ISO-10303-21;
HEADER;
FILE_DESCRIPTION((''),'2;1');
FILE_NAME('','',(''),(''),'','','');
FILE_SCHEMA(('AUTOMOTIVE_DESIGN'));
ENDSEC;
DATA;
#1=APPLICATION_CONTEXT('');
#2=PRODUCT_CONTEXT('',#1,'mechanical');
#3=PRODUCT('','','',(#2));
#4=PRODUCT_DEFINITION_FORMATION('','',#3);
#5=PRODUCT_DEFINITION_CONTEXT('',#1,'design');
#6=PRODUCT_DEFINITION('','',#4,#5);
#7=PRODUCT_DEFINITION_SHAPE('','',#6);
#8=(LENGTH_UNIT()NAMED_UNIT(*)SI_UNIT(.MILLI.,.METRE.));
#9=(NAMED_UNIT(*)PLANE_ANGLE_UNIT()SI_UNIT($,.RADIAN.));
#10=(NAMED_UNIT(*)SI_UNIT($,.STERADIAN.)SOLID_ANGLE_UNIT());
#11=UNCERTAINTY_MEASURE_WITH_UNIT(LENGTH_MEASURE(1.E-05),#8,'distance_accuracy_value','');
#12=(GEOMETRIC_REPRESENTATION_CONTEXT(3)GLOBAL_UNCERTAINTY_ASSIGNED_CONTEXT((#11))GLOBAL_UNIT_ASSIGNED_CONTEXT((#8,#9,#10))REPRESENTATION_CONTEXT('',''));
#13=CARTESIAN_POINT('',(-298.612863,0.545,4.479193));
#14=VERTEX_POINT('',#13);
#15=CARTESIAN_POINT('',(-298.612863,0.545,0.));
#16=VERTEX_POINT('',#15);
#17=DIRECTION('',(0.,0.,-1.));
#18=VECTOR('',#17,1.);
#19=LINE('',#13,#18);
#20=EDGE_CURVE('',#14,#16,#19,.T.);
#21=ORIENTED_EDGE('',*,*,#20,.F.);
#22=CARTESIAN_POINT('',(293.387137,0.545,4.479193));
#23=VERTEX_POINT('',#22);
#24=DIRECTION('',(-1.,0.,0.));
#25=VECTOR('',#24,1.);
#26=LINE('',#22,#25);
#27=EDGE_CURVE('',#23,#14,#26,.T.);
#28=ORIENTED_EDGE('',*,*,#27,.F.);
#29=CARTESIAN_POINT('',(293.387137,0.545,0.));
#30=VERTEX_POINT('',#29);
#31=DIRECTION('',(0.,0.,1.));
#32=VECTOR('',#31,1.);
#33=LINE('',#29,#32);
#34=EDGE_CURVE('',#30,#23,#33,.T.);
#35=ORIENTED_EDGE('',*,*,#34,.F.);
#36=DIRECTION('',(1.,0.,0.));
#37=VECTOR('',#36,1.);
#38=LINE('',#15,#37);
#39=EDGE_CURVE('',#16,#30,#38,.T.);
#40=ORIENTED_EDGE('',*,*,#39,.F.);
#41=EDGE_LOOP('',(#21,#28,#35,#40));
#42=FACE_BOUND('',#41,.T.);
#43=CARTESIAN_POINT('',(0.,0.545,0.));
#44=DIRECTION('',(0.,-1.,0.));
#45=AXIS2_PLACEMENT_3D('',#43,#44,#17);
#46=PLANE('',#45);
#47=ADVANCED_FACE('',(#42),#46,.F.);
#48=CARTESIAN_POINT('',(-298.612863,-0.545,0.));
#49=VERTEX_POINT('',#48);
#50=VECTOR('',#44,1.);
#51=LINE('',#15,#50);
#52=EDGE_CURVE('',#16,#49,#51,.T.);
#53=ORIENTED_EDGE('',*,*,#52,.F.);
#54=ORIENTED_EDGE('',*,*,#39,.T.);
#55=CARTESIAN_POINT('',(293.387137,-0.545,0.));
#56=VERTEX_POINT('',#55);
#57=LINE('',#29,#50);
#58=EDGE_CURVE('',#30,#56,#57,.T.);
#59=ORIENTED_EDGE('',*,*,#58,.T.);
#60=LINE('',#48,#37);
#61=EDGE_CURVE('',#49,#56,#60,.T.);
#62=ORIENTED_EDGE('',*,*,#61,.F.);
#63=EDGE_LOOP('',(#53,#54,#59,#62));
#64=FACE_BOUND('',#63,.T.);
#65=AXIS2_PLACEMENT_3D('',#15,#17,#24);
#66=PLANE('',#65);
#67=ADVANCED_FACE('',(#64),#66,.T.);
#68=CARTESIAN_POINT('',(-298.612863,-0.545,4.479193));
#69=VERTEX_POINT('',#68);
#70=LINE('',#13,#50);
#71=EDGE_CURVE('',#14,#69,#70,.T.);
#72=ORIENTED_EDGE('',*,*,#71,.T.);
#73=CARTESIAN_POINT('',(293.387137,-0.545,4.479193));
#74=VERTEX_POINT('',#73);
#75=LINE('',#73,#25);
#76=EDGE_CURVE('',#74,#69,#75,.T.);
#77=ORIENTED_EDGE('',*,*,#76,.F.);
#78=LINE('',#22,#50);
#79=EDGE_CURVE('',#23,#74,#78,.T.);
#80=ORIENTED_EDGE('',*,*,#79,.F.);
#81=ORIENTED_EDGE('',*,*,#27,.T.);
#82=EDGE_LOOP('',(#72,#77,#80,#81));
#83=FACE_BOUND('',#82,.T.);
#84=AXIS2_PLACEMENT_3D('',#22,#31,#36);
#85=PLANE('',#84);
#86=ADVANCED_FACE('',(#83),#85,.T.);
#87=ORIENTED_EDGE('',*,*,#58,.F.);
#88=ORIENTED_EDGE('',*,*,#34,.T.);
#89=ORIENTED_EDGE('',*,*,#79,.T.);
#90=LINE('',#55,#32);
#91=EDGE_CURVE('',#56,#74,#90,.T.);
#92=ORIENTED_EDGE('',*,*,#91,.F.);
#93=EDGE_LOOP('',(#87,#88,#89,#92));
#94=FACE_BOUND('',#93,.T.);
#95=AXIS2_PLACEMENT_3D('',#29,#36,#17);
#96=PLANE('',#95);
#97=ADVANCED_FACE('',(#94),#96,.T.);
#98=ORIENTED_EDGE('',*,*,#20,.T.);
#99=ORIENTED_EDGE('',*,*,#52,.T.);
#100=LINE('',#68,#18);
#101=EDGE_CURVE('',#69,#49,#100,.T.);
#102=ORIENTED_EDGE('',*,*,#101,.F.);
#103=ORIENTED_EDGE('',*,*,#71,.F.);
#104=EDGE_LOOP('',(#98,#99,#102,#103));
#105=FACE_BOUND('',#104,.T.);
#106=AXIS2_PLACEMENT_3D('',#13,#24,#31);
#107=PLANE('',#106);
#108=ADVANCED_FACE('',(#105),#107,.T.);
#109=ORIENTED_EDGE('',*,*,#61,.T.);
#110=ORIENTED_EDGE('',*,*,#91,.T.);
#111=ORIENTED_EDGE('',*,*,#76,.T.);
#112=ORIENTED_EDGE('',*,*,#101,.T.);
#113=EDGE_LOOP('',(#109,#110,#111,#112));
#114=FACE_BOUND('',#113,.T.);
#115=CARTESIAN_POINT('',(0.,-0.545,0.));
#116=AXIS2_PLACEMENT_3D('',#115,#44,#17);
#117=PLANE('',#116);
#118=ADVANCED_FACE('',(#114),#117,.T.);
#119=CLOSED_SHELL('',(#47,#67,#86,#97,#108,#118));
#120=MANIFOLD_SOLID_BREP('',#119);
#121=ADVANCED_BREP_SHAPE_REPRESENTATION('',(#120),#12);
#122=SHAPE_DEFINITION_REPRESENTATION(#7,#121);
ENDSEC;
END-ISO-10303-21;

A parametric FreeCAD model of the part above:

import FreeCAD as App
import Part
import Sketcher
from FreeCAD import Vector

doc = App.newDocument("Part")
params = doc.addObject("Spreadsheet::Sheet", "Params")
for row, (alias, value) in enumerate([
    ("sketch1_width", "592 mm"),
    ("pad1_length", "1.09 mm"),
], start=1):
    params.set(f"A{row}", alias)
    params.set(f"B{row}", "=" + value)
    params.setAlias(f"B{row}", alias)

body = doc.addObject("PartDesign::Body", "Body")

sketch1 = doc.addObject("Sketcher::SketchObject", "Sketch")
body.addObject(sketch1)
sketch1.AttachmentSupport = (doc.XZ_Plane, [""])
sketch1.MapMode = "FlatFace"
sketch1.AttachmentOffset = App.Placement(Vector(0, 0, 0.545), App.Rotation())
sketch1.addGeometry([
    Part.LineSegment(Vector(-298.6, 4.5, 0), Vector(-298.6, 0, 0)),
    Part.LineSegment(Vector(-298.6, 0, 0), Vector(293.4, 0, 0)),
    Part.LineSegment(Vector(293.4, 0, 0), Vector(293.4, 4.5, 0)),
    Part.LineSegment(Vector(293.4, 4.5, 0), Vector(-298.6, 4.5, 0)),
], False)
sketch1.addConstraint([
    Sketcher.Constraint("Coincident", 0, 2, 1, 1),
    Sketcher.Constraint("Coincident", 1, 2, 2, 1),
    Sketcher.Constraint("Coincident", 2, 2, 3, 1),
    Sketcher.Constraint("Coincident", 3, 2, 0, 1),
    Sketcher.Constraint("Vertical", 0),
    Sketcher.Constraint("Horizontal", 1),
    Sketcher.Constraint("Vertical", 2),
    Sketcher.Constraint("Horizontal", 3),
    Sketcher.Constraint("PointOnObject", 0, 2, -1),
    Sketcher.Constraint("DistanceX", 1, 1, 1, 2, 592.0),
    Sketcher.Constraint("DistanceY", 0, 2, 0, 1, 4.479193),
    Sketcher.Constraint("DistanceX", 0, 2, -1, 1, 298.612863),
])
sketch1.setExpression("Constraints[9]", "Params.sketch1_width")
pad1 = doc.addObject("PartDesign::Pad", "Pad")
body.addObject(pad1)
pad1.Profile = sketch1
pad1.setExpression("Length", "Params.pad1_length")
pad1.Reversed = True

doc.recompute()
